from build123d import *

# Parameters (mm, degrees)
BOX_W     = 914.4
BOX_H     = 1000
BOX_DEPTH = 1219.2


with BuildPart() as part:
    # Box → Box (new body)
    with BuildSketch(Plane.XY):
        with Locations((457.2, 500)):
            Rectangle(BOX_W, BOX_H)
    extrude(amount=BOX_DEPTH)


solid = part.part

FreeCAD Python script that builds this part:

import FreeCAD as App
import Part
import Sketcher
from FreeCAD import Vector
Q = App.Units.Quantity

doc = App.newDocument("Part")
body = doc.addObject("PartDesign::Body", "Body")

# Sketch on XY plane
sketch1 = doc.addObject("Sketcher::SketchObject", "Sketch")
body.addObject(sketch1)
sketch1.AttachmentSupport = (doc.XY_Plane, [""])
sketch1.MapMode = "FlatFace"
sketch1.addGeometry(Part.LineSegment(Vector(0, 1000, 0), Vector(0, 0, 0)), False)
sketch1.addGeometry(Part.LineSegment(Vector(0, 0, 0), Vector(914, 0, 0)), False)
sketch1.addGeometry(Part.LineSegment(Vector(914, 0, 0), Vector(914, 1000, 0)), False)
sketch1.addGeometry(Part.LineSegment(Vector(914, 1000, 0), Vector(0, 1000, 0)), False)
sketch1.addConstraint(Sketcher.Constraint("Coincident", 0, 2, 1, 1))
sketch1.addConstraint(Sketcher.Constraint("Coincident", 1, 2, 2, 1))
sketch1.addConstraint(Sketcher.Constraint("Coincident", 2, 2, 3, 1))
sketch1.addConstraint(Sketcher.Constraint("Coincident", 3, 2, 0, 1))
sketch1.addConstraint(Sketcher.Constraint("Vertical", 0))
sketch1.addConstraint(Sketcher.Constraint("Horizontal", 1))
sketch1.addConstraint(Sketcher.Constraint("Vertical", 2))
sketch1.addConstraint(Sketcher.Constraint("Horizontal", 3))
sketch1.addConstraint(Sketcher.Constraint("Coincident", 0, 2, -1, 1))
sketch1.addConstraint(Sketcher.Constraint("DistanceX", 1, 1, 1, 2, Q("36 in")))
sketch1.addConstraint(Sketcher.Constraint("DistanceY", 0, 2, 0, 1, 1000.0))
pad1 = doc.addObject("PartDesign::Pad", "Pad")
body.addObject(pad1)
pad1.Profile = sketch1
pad1.Length = Q("48 in")

doc.recompute()
